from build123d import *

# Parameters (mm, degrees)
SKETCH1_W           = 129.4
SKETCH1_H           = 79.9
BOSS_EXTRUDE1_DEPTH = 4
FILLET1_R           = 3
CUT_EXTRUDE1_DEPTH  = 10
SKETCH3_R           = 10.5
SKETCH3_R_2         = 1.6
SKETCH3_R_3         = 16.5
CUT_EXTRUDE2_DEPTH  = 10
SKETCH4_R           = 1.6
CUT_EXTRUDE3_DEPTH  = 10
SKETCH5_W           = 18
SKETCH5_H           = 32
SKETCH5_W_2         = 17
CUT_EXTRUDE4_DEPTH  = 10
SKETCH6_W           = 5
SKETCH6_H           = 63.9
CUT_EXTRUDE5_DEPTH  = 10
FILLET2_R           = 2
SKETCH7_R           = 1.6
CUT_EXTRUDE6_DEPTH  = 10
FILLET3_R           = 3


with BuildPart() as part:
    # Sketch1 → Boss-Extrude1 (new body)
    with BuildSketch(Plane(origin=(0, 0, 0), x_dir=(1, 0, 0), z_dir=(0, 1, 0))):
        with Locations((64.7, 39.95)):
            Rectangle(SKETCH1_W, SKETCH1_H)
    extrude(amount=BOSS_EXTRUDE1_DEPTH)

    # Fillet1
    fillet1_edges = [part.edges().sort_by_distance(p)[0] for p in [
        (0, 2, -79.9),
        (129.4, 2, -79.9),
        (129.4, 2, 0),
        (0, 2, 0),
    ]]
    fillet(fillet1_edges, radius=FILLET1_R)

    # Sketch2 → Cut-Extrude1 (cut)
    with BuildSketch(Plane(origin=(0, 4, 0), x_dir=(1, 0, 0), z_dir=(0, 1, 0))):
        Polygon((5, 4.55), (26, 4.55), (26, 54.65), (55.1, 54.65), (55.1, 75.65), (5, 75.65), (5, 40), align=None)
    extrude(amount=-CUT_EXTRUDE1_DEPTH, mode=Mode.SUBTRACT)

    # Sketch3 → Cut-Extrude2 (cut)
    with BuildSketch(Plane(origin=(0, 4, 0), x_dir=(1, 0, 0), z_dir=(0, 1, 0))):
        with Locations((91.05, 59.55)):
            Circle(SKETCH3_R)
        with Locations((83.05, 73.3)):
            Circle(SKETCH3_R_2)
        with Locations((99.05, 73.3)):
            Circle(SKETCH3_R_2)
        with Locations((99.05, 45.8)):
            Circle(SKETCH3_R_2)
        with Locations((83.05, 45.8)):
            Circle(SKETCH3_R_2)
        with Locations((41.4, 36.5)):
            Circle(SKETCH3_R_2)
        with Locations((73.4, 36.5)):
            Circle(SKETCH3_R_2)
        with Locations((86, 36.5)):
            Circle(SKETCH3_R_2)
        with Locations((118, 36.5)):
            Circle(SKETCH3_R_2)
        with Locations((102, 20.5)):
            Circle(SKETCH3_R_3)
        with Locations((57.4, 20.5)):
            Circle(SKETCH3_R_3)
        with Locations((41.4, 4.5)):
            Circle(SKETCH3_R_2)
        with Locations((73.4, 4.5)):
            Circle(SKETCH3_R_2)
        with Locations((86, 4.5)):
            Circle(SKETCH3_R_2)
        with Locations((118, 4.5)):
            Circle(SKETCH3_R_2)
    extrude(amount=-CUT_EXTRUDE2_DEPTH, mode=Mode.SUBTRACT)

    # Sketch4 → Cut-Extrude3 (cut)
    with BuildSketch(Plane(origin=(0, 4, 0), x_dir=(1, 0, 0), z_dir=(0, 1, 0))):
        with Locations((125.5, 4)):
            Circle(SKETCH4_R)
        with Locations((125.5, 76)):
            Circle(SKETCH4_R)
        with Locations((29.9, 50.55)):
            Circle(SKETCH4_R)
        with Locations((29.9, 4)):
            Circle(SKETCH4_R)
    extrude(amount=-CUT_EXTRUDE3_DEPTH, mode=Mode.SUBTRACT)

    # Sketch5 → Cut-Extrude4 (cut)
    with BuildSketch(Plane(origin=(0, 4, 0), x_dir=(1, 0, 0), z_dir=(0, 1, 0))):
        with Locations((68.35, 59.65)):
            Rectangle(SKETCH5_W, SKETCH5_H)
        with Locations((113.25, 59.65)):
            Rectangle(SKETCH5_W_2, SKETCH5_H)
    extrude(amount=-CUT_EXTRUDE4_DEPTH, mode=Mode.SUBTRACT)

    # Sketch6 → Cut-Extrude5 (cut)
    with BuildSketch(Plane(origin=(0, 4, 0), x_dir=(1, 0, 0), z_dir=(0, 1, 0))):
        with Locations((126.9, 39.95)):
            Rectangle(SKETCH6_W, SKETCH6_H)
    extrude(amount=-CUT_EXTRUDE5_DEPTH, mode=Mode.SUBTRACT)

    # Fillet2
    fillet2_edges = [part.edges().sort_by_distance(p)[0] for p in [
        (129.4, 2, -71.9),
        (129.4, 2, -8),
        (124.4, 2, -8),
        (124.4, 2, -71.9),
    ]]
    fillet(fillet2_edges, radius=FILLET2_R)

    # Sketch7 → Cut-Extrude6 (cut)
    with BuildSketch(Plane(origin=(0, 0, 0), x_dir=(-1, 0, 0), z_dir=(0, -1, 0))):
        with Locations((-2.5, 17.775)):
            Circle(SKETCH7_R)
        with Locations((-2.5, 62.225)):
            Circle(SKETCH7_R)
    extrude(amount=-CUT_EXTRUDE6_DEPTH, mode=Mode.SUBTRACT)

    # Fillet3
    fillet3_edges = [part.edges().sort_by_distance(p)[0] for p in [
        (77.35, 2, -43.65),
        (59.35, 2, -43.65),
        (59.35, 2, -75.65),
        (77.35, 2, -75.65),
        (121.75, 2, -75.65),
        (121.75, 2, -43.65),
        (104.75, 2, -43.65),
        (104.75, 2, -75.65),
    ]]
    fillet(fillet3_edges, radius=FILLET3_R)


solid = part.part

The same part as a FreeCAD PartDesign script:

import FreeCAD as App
import Part
import Sketcher
from FreeCAD import Vector


def edges_at(feature, points):
    """Names of the edges that pass closest to the given points."""
    edges = feature.Shape.Edges
    near = lambda p: min(range(len(edges)), key=lambda i: edges[i].distToShape(Part.Vertex(*p))[0])
    return sorted({f"Edge{near(p) + 1}" for p in points})


def add_polygon(sketch, points):
    """Adds a closed chain of lines whose ends are joined by coincident constraints."""
    first, n = sketch.GeometryCount, len(points)
    for a, b in zip(points, points[1:] + points[:1]):
        sketch.addGeometry(Part.LineSegment(App.Vector(*a, 0), App.Vector(*b, 0)), False)
    for i in range(n):
        sketch.addConstraint(Sketcher.Constraint("Coincident", first + i, 2, first + (i + 1) % n, 1))

doc = App.newDocument("Part")
body = doc.addObject("PartDesign::Body", "Body")

# Sketch on XZ plane
sketch1 = body.newObject("Sketcher::SketchObject", "Sketch")
sketch1.AttachmentSupport = (doc.getObject("XZ_Plane"), [""])
sketch1.MapMode = "FlatFace"
add_polygon(sketch1, [(0, -79.9), (0, 0), (129.4, 0), (129.4, -79.9)])  # lines 0-3
sketch1.addConstraint([
    Sketcher.Constraint("Vertical", 0),
    Sketcher.Constraint("Horizontal", 1),
    Sketcher.Constraint("Vertical", 2),
    Sketcher.Constraint("Horizontal", 3),
    Sketcher.Constraint("Coincident", 0, 2, -1, 1),
    Sketcher.Constraint("DistanceX", 1, 1, 1, 2, 129.4),
    Sketcher.Constraint("DistanceY", 0, 1, 0, 2, 79.9),
])
pad1 = body.newObject("PartDesign::Pad", "Pad")
pad1.Profile = sketch1
pad1.Length = 4
pad1.Reversed = True
doc.recompute()

fillet = body.newObject("PartDesign::Fillet", "Fillet")
fillet.Base = (pad1, edges_at(pad1, [
    (0, 2, -79.9),
    (129.4, 2, -79.9),
    (129.4, 2, 0),
    (0, 2, 0),
]))
fillet.Radius = 3

# Sketch on XZ plane
sketch2 = body.newObject("Sketcher::SketchObject", "Sketch001")
sketch2.AttachmentSupport = (doc.getObject("XZ_Plane"), [""])
sketch2.MapMode = "FlatFace"
sketch2.AttachmentOffset = App.Placement(Vector(0, 0, -4), App.Rotation())
add_polygon(sketch2, [(5, -4.55), (26, -4.55), (26, -54.65), (55.1, -54.65), (55.1, -75.65), (5, -75.65)])  # lines 0-5
sketch2.addConstraint([
    Sketcher.Constraint("Horizontal", 0),
    Sketcher.Constraint("Vertical", 1),
    Sketcher.Constraint("Horizontal", 2),
    Sketcher.Constraint("Vertical", 3),
    Sketcher.Constraint("Horizontal", 4),
    Sketcher.Constraint("Vertical", 5),
    Sketcher.Constraint("Equal", 4, 1),
    Sketcher.Constraint("Equal", 0, 3),
    Sketcher.Constraint("DistanceX", 0, 1, 0, 2, 21.0),
    Sketcher.Constraint("DistanceX", 2, 1, 2, 2, 29.1),
    Sketcher.Constraint("DistanceX", -1, 1, 0, 2, 26.0),
    Sketcher.Constraint("DistanceY", 0, 2, -1, 1, 4.55),
])
pocket1 = body.newObject("PartDesign::Pocket", "Pocket")
pocket1.Profile = sketch2
pocket1.Length = 10
pocket1.Reversed = True

# Sketch on XZ plane
sketch3 = body.newObject("Sketcher::SketchObject", "Sketch002")
sketch3.AttachmentSupport = (doc.getObject("XZ_Plane"), [""])
sketch3.MapMode = "FlatFace"
sketch3.AttachmentOffset = App.Placement(Vector(0, 0, -4), App.Rotation())
sketch3.addGeometry([
    Part.Circle(Vector(91.05, -59.55, 0), Vector(0, 0, 1), 10.5),  # 0
    Part.Circle(Vector(83.05, -73.3, 0), Vector(0, 0, 1), 1.6),  # 1
    Part.Circle(Vector(99.05, -73.3, 0), Vector(0, 0, 1), 1.6),  # 2
    Part.Circle(Vector(99.05, -45.8, 0), Vector(0, 0, 1), 1.6),  # 3
    Part.Circle(Vector(83.05, -45.8, 0), Vector(0, 0, 1), 1.6),  # 4
    Part.Circle(Vector(41.4, -36.5, 0), Vector(0, 0, 1), 1.6),  # 5
    Part.Circle(Vector(73.4, -36.5, 0), Vector(0, 0, 1), 1.6),  # 6
    Part.Circle(Vector(86, -36.5, 0), Vector(0, 0, 1), 1.6),  # 7
    Part.Circle(Vector(118, -36.5, 0), Vector(0, 0, 1), 1.6),  # 8
    Part.Circle(Vector(102, -20.5, 0), Vector(0, 0, 1), 16.5),  # 9
    Part.Circle(Vector(57.4, -20.5, 0), Vector(0, 0, 1), 16.5),  # 10
    Part.Circle(Vector(41.4, -4.5, 0), Vector(0, 0, 1), 1.6),  # 11
    Part.Circle(Vector(73.4, -4.5, 0), Vector(0, 0, 1), 1.6),  # 12
    Part.Circle(Vector(86, -4.5, 0), Vector(0, 0, 1), 1.6),  # 13
    Part.Circle(Vector(118, -4.5, 0), Vector(0, 0, 1), 1.6),  # 14
], False)
sketch3.addConstraint([
    Sketcher.Constraint("Equal", 1, 2),
    Sketcher.Constraint("Equal", 2, 3),
    Sketcher.Constraint("Equal", 3, 4),
    Sketcher.Constraint("Equal", 4, 5),
    Sketcher.Constraint("Equal", 5, 6),
    Sketcher.Constraint("Equal", 6, 7),
    Sketcher.Constraint("Equal", 7, 8),
    Sketcher.Constraint("Equal", 9, 10),
    Sketcher.Constraint("Equal", 8, 11),
    Sketcher.Constraint("Equal", 11, 12),
    Sketcher.Constraint("Equal", 12, 13),
    Sketcher.Constraint("Equal", 13, 14),
    Sketcher.Constraint("Horizontal", 1, 3, 2, 3),
    Sketcher.Constraint("Horizontal", 3, 3, 4, 3),
    Sketcher.Constraint("Horizontal", 5, 3, 6, 3),
    Sketcher.Constraint("Horizontal", 6, 3, 7, 3),
    Sketcher.Constraint("Horizontal", 7, 3, 8, 3),
    Sketcher.Constraint("Horizontal", 9, 3, 10, 3),
    Sketcher.Constraint("Horizontal", 11, 3, 12, 3),
    Sketcher.Constraint("Horizontal", 12, 3, 13, 3),
    Sketcher.Constraint("Horizontal", 13, 3, 14, 3),
    Sketcher.Constraint("Vertical", 2, 3, 3, 3),
    Sketcher.Constraint("Vertical", 1, 3, 4, 3),
    Sketcher.Constraint("Vertical", 5, 3, 11, 3),
    Sketcher.Constraint("Vertical", 6, 3, 12, 3),
    Sketcher.Constraint("Vertical", 7, 3, 13, 3),
    Sketcher.Constraint("Vertical", 8, 3, 14, 3),
    Sketcher.Constraint("Diameter", 0, 21.0),
    Sketcher.Constraint("Diameter", 9, 33.0),
    Sketcher.Constraint("Diameter", 1, 3.2),
    Sketcher.Constraint("DistanceX", -1, 1, 7, 3, 86.0),
    Sketcher.Constraint("DistanceX", -1, 1, 8, 3, 118.0),
    Sketcher.Constraint("DistanceX", -1, 1, 9, 3, 102.0),
    Sketcher.Constraint("DistanceX", 1, 3, 0, 3, 8.0),
    Sketcher.Constraint("DistanceX", 0, 3, 2, 3, 8.0),
    Sketcher.Constraint("DistanceX", 5, 3, 6, 3, 32.0),
    Sketcher.Constraint("DistanceY", 7, 3, 9, 3, 16.0),
    Sketcher.Constraint("DistanceX", 5, 3, 10, 3, 16.0),
    Sketcher.Constraint("DistanceY", 10, 3, 11, 3, 16.0),
    Sketcher.Constraint("DistanceY", 1, 3, -1, 1, 73.3),
    Sketcher.Constraint("DistanceY", 3, 3, -1, 1, 45.8),
    Sketcher.Constraint("DistanceX", -1, 1, 5, 3, 41.4),
    Sketcher.Constraint("DistanceY", 5, 3, -1, 1, 36.5),
    Sketcher.Constraint("DistanceX", -1, 1, 0, 3, 91.05),
    Sketcher.Constraint("DistanceY", 0, 3, -1, 1, 59.55),
])
pocket2 = body.newObject("PartDesign::Pocket", "Pocket001")
pocket2.Profile = sketch3
pocket2.Length = 10
pocket2.Reversed = True

# Sketch on XZ plane
sketch4 = body.newObject("Sketcher::SketchObject", "Sketch003")
sketch4.AttachmentSupport = (doc.getObject("XZ_Plane"), [""])
sketch4.MapMode = "FlatFace"
sketch4.AttachmentOffset = App.Placement(Vector(0, 0, -4), App.Rotation())
sketch4.addGeometry([
    Part.Circle(Vector(125.5, -4, 0), Vector(0, 0, 1), 1.6),
    Part.Circle(Vector(125.5, -76, 0), Vector(0, 0, 1), 1.6),
    Part.Circle(Vector(29.9, -50.55, 0), Vector(0, 0, 1), 1.6),
    Part.Circle(Vector(29.9, -4, 0), Vector(0, 0, 1), 1.6),
], False)
sketch4.addConstraint([
    Sketcher.Constraint("Equal", 0, 1),
    Sketcher.Constraint("Equal", 1, 2),
    Sketcher.Constraint("Equal", 2, 3),
    Sketcher.Constraint("Horizontal", 0, 3, 3, 3),
    Sketcher.Constraint("Vertical", 0, 3, 1, 3),
    Sketcher.Constraint("Vertical", 2, 3, 3, 3),
    Sketcher.Constraint("Diameter", 0, 3.2),
    Sketcher.Constraint("DistanceY", 0, 3, -1, 1, 4.0),
    Sketcher.Constraint("DistanceY", 1, 3, -1, 1, 76.0),
    Sketcher.Constraint("DistanceX", -1, 1, 0, 3, 125.5),
    Sketcher.Constraint("DistanceX", -1, 1, 2, 3, 29.9),
    Sketcher.Constraint("DistanceY", 2, 3, -1, 1, 50.55),
])
pocket3 = body.newObject("PartDesign::Pocket", "Pocket002")
pocket3.Profile = sketch4
pocket3.Length = 10
pocket3.Reversed = True

# Sketch on XZ plane
sketch5 = body.newObject("Sketcher::SketchObject", "Sketch004")
sketch5.AttachmentSupport = (doc.getObject("XZ_Plane"), [""])
sketch5.MapMode = "FlatFace"
sketch5.AttachmentOffset = App.Placement(Vector(0, 0, -4), App.Rotation())
add_polygon(sketch5, [(59.35, -75.65), (59.35, -43.65), (77.35, -43.65), (77.35, -75.65)])  # lines 0-3
add_polygon(sketch5, [(104.75, -75.65), (104.75, -43.65), (121.75, -43.65), (121.75, -75.65)])  # lines 4-7
sketch5.addConstraint([
    Sketcher.Constraint("Vertical", 0),
    Sketcher.Constraint("Horizontal", 1),
    Sketcher.Constraint("Vertical", 2),
    Sketcher.Constraint("Horizontal", 3),
    Sketcher.Constraint("Vertical", 4),
    Sketcher.Constraint("Horizontal", 5),
    Sketcher.Constraint("Vertical", 6),
    Sketcher.Constraint("Horizontal", 7),
    Sketcher.Constraint("Horizontal", 1, 2, 4, 2),
    Sketcher.Constraint("Horizontal", 3, 2, 6, 2),
    Sketcher.Constraint("DistanceX", 1, 1, 1, 2, 18.0),
    Sketcher.Constraint("DistanceX", 5, 1, 5, 2, 17.0),
    Sketcher.Constraint("DistanceY", 0, 1, 0, 2, 32.0),
    Sketcher.Constraint("DistanceX", 1, 2, 4, 2, 27.4),
    Sketcher.Constraint("DistanceX", -1, 1, 0, 2, 59.35),
    Sketcher.Constraint("DistanceY", 0, 2, -1, 1, 43.65),
])
pocket4 = body.newObject("PartDesign::Pocket", "Pocket003")
pocket4.Profile = sketch5
pocket4.Length = 10
pocket4.Reversed = True

# Sketch on XZ plane
sketch6 = body.newObject("Sketcher::SketchObject", "Sketch005")
sketch6.AttachmentSupport = (doc.getObject("XZ_Plane"), [""])
sketch6.MapMode = "FlatFace"
sketch6.AttachmentOffset = App.Placement(Vector(0, 0, -4), App.Rotation())
add_polygon(sketch6, [(124.4, -71.9), (124.4, -8), (129.4, -8), (129.4, -71.9)])  # lines 0-3
sketch6.addConstraint([
    Sketcher.Constraint("Vertical", 0),
    Sketcher.Constraint("Horizontal", 1),
    Sketcher.Constraint("Vertical", 2),
    Sketcher.Constraint("Horizontal", 3),
    Sketcher.Constraint("DistanceX", 1, 1, 1, 2, 5.0),
    Sketcher.Constraint("DistanceY", 0, 1, 0, 2, 63.9),
    Sketcher.Constraint("DistanceY", 0, 2, -1, 1, 8.0),
    Sketcher.Constraint("DistanceX", -1, 1, 0, 2, 124.4),
])
pocket5 = body.newObject("PartDesign::Pocket", "Pocket004")
pocket5.Profile = sketch6
pocket5.Length = 10
pocket5.Reversed = True
doc.recompute()

fillet2 = body.newObject("PartDesign::Fillet", "Fillet001")
fillet2.Base = (pocket5, edges_at(pocket5, [
    (129.4, 2, -71.9),
    (129.4, 2, -8),
    (124.4, 2, -8),
    (124.4, 2, -71.9),
]))
fillet2.Radius = 2

# Sketch on XZ plane
sketch7 = body.newObject("Sketcher::SketchObject", "Sketch006")
sketch7.AttachmentSupport = (doc.getObject("XZ_Plane"), [""])
sketch7.MapMode = "FlatFace"
sketch7.addGeometry([
    Part.Circle(Vector(2.5, -17.775, 0), Vector(0, 0, 1), 1.6),
    Part.Circle(Vector(2.5, -62.225, 0), Vector(0, 0, 1), 1.6),
], False)
sketch7.addConstraint([
    Sketcher.Constraint("Equal", 0, 1),
    Sketcher.Constraint("Vertical", 0, 3, 1, 3),
    Sketcher.Constraint("Diameter", 0, 3.2),
    Sketcher.Constraint("DistanceX", -1, 1, 0, 3, 2.5),
    Sketcher.Constraint("DistanceY", 1, 3, 0, 3, 44.45),
    Sketcher.Constraint("DistanceY", 0, 3, -1, 1, 17.775),
])
pocket6 = body.newObject("PartDesign::Pocket", "Pocket005")
pocket6.Profile = sketch7
pocket6.Length = 10
doc.recompute()

fillet3 = body.newObject("PartDesign::Fillet", "Fillet002")
fillet3.Base = (pocket6, edges_at(pocket6, [
    (77.35, 2, -43.65),
    (59.35, 2, -43.65),
    (59.35, 2, -75.65),
    (77.35, 2, -75.65),
    (121.75, 2, -75.65),
    (121.75, 2, -43.65),
    (104.75, 2, -43.65),
    (104.75, 2, -75.65),
]))
fillet3.Radius = 3

doc.recompute()
